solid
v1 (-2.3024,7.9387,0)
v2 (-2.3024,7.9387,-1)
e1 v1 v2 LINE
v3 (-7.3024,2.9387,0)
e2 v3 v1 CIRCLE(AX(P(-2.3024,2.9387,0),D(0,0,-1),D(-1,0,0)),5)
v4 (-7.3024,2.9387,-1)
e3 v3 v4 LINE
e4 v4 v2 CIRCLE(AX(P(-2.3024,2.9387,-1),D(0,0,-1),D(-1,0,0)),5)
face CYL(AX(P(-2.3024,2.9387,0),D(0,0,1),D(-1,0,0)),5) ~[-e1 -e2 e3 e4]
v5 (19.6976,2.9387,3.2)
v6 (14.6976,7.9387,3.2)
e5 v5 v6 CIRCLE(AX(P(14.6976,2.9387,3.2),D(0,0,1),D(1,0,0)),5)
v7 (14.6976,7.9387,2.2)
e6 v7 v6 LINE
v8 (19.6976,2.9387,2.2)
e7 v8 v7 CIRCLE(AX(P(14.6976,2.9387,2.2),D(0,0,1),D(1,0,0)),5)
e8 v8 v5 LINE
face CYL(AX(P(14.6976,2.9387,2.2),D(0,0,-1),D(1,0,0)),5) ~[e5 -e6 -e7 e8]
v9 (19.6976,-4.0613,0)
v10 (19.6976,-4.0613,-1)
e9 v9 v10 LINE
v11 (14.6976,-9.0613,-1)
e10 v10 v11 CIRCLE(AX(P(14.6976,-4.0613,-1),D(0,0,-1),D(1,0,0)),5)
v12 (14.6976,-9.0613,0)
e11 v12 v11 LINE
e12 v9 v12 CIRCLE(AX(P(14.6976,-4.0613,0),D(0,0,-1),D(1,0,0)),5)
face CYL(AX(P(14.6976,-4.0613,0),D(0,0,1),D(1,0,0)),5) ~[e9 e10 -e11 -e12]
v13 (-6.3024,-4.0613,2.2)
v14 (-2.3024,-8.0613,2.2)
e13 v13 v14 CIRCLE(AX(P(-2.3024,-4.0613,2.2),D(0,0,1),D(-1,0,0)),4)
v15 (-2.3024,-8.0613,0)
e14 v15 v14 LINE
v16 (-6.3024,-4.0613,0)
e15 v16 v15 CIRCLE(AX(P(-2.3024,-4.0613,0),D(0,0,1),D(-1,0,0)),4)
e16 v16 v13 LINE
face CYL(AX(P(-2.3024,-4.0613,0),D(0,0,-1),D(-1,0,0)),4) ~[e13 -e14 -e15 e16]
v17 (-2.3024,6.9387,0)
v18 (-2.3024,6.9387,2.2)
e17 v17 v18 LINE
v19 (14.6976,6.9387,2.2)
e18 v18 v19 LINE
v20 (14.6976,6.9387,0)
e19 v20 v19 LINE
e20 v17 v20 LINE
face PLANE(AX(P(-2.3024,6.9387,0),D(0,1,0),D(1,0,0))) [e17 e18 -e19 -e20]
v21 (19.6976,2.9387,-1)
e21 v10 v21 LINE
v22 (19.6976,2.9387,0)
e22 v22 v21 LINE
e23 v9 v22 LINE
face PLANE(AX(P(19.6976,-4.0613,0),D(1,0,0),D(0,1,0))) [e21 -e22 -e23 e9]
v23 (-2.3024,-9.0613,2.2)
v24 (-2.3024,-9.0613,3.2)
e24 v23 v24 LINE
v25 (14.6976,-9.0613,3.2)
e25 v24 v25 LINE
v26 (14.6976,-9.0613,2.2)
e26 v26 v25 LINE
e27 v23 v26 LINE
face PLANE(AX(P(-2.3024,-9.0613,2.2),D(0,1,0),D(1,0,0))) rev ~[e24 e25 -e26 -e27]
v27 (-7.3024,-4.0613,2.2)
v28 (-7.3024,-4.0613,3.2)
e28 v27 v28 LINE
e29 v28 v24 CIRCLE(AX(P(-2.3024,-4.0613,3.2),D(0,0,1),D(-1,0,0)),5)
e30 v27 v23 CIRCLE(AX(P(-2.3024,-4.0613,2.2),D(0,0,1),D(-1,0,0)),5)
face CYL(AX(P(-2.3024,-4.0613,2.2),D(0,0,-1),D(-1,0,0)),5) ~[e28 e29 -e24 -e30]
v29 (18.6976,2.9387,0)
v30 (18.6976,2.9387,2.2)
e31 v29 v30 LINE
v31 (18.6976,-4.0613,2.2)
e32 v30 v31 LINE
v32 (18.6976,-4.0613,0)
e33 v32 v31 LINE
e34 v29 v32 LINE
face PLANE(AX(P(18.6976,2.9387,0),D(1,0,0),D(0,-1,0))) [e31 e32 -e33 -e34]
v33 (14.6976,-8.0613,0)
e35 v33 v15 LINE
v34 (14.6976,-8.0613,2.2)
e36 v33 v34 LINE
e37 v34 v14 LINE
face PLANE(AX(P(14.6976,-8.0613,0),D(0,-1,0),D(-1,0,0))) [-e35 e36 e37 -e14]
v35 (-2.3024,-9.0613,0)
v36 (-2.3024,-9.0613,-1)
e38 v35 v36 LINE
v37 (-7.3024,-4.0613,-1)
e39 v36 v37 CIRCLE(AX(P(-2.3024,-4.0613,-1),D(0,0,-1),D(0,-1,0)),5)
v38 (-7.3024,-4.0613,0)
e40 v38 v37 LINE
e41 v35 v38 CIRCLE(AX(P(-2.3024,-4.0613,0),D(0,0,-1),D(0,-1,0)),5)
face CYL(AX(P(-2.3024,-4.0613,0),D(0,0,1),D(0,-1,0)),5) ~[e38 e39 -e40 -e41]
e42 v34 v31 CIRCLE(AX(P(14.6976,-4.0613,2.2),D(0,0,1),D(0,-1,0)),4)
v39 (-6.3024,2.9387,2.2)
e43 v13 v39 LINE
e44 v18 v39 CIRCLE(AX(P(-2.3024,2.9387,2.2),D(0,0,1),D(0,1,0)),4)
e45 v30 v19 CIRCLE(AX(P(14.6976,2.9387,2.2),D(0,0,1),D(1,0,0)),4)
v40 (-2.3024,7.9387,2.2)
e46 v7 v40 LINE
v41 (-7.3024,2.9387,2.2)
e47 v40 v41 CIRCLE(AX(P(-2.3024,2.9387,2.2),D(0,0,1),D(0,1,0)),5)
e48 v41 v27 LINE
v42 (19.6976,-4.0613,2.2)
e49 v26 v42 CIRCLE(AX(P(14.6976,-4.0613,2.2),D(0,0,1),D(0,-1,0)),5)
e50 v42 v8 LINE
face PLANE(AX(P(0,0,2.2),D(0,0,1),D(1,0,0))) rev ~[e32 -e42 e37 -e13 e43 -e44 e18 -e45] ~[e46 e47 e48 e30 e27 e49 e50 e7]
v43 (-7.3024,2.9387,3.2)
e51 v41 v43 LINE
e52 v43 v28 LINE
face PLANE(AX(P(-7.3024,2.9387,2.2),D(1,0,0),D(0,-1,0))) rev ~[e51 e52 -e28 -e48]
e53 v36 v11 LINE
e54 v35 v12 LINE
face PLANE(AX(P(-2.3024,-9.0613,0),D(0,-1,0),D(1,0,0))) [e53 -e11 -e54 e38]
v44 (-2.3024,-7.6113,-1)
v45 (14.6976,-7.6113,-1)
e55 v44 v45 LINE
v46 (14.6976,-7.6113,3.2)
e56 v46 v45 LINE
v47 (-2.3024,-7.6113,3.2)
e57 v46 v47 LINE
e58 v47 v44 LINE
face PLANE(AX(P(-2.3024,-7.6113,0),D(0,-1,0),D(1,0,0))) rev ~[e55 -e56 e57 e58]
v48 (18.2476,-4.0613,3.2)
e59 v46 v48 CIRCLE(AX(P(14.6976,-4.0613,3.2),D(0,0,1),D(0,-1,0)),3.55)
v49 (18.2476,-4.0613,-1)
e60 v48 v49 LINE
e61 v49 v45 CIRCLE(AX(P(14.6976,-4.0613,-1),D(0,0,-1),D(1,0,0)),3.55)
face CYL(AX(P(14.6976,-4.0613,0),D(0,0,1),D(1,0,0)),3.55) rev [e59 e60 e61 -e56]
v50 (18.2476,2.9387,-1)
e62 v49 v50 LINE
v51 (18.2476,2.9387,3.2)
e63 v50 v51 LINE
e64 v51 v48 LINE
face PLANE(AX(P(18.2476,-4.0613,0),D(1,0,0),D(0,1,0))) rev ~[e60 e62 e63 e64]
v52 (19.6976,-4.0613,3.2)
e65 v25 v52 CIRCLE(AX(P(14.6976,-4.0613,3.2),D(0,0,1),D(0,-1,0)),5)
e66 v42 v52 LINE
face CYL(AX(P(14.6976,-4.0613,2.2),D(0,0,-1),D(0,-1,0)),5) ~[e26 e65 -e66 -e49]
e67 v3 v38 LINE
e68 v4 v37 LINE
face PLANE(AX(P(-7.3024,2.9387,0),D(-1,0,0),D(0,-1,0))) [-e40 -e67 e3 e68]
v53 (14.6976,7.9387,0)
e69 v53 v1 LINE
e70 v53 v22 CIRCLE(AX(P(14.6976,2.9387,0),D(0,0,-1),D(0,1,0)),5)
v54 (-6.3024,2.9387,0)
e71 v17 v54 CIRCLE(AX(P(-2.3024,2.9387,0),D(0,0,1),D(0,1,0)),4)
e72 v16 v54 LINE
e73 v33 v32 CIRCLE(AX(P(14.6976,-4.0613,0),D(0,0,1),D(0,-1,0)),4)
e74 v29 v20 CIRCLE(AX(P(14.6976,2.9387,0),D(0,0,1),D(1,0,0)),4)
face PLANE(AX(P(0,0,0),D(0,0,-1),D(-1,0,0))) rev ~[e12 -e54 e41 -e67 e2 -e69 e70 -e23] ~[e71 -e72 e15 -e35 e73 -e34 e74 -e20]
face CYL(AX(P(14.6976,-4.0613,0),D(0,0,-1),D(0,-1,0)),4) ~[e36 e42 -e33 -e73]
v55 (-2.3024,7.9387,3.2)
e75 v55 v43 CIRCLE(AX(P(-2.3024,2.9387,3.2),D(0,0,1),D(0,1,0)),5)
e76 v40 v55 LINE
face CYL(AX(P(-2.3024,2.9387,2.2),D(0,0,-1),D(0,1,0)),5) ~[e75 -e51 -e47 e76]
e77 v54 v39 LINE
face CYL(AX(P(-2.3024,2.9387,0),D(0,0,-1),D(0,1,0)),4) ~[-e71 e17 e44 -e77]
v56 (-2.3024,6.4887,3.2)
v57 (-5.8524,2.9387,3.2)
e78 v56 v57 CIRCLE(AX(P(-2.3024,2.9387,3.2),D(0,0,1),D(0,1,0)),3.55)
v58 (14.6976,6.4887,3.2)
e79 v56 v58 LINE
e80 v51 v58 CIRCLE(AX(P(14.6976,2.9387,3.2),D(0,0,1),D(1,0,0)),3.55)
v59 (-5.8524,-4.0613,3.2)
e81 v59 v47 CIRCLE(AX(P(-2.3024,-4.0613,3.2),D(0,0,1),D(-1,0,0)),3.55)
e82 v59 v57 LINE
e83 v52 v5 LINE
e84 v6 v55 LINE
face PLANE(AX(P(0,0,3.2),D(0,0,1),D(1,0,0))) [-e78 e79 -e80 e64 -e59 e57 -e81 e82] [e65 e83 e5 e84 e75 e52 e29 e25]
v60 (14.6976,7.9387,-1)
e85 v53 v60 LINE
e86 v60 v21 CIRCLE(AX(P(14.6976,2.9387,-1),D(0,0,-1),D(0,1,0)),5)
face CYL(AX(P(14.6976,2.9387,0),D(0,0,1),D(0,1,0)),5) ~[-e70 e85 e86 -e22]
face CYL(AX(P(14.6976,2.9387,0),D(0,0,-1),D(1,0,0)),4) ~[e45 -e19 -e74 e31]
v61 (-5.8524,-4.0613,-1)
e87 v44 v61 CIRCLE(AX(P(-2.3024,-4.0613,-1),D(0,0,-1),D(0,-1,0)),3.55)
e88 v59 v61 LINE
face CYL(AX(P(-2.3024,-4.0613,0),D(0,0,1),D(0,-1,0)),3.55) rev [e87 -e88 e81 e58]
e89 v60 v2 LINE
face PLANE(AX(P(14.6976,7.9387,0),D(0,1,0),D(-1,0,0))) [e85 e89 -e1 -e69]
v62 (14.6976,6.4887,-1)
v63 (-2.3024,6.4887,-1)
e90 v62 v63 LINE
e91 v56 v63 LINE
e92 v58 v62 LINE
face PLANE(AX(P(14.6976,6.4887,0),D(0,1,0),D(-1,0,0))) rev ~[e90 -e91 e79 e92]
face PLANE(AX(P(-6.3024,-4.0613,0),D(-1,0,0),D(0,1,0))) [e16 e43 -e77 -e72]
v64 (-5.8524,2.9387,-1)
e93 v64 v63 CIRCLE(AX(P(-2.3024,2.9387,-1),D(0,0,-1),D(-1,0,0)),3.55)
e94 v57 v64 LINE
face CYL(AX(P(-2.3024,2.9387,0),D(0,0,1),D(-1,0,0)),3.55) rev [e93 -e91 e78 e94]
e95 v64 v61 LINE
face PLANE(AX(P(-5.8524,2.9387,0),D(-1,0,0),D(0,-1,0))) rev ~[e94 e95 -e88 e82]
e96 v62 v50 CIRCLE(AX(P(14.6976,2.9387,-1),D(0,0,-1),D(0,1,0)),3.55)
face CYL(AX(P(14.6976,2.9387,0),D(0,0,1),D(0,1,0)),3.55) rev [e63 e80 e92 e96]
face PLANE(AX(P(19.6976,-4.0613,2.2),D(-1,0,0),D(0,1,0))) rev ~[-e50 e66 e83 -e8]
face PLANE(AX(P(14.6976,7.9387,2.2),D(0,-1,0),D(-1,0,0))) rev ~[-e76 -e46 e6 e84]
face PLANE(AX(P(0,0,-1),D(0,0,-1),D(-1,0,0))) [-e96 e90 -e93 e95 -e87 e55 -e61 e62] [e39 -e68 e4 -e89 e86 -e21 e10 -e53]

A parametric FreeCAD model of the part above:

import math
import FreeCAD as App
import Part
import Sketcher

V = App.Vector
Q = App.Units.Quantity

doc = App.newDocument("Part")
body = doc.addObject("PartDesign::Body", "Body")

sketch1 = body.newObject("Sketcher::SketchObject", "Sketch")
sketch1.AttachmentSupport = (doc.getObject("XY_Plane"), [""])
sketch1.MapMode = "FlatFace"
sketch1.addGeometry([
    Part.LineSegment(V(14.7, 6.9, 0), V(-2.3, 6.9, 0)),
    Part.ArcOfCircle(Part.Circle(V(-2.3, 2.9, 0), V(0, 0, 1), 4), math.radians(90), math.radians(180)),
    Part.LineSegment(V(-6.3, 2.9, 0), V(-6.3, -4.1, 0)),
    Part.ArcOfCircle(Part.Circle(V(-2.3, -4.1, 0), V(0, 0, 1), 4), math.radians(180), math.radians(270)),
    Part.LineSegment(V(-2.3, -8.1, 0), V(14.7, -8.1, 0)),
    Part.ArcOfCircle(Part.Circle(V(14.7, -4.1, 0), V(0, 0, 1), 4), math.radians(-90), math.radians(0)),
    Part.LineSegment(V(18.7, -4.1, 0), V(18.7, 2.9, 0)),
    Part.ArcOfCircle(Part.Circle(V(14.7, 2.9, 0), V(0, 0, 1), 4), math.radians(0), math.radians(90)),
    Part.LineSegment(V(-2.3, 6.5, 0), V(14.7, 6.5, 0)),
    Part.ArcOfCircle(Part.Circle(V(14.7, 2.9, 0), V(0, 0, 1), 3.5), math.radians(0), math.radians(90)),
    Part.LineSegment(V(18.2, 2.9, 0), V(18.2, -4.1, 0)),
    Part.ArcOfCircle(Part.Circle(V(14.7, -4.1, 0), V(0, 0, 1), 3.5), math.radians(-90), math.radians(0)),
    Part.LineSegment(V(14.7, -7.6, 0), V(-2.3, -7.6, 0)),
    Part.ArcOfCircle(Part.Circle(V(-2.3, -4.1, 0), V(0, 0, 1), 3.6), math.radians(180), math.radians(270)),
    Part.LineSegment(V(-5.9, -4.1, 0), V(-5.9, 2.9, 0)),
    Part.ArcOfCircle(Part.Circle(V(-2.3, 2.9, 0), V(0, 0, 1), 3.5), math.radians(90), math.radians(180)),
], False)
sketch1.addConstraint([
    Sketcher.Constraint("Tangent", 0, 2, 1, 1),
    Sketcher.Constraint("Tangent", 1, 2, 2, 1),
    Sketcher.Constraint("Tangent", 2, 2, 3, 1),
    Sketcher.Constraint("Tangent", 3, 2, 4, 1),
    Sketcher.Constraint("Tangent", 4, 2, 5, 1),
    Sketcher.Constraint("Tangent", 5, 2, 6, 1),
    Sketcher.Constraint("Tangent", 6, 2, 7, 1),
    Sketcher.Constraint("Tangent", 7, 2, 0, 1),
    Sketcher.Constraint("Tangent", 8, 2, 9, 2),
    Sketcher.Constraint("Tangent", 9, 1, 10, 1),
    Sketcher.Constraint("Tangent", 10, 2, 11, 2),
    Sketcher.Constraint("Tangent", 11, 1, 12, 1),
    Sketcher.Constraint("Tangent", 12, 2, 13, 2),
    Sketcher.Constraint("Tangent", 13, 1, 14, 1),
    Sketcher.Constraint("Tangent", 14, 2, 15, 2),
    Sketcher.Constraint("Tangent", 15, 1, 8, 1),
    Sketcher.Constraint("Horizontal", 0),
    Sketcher.Constraint("Vertical", 2),
    Sketcher.Constraint("Horizontal", 4),
    Sketcher.Constraint("Vertical", 6),
    Sketcher.Constraint("Horizontal", 8),
    Sketcher.Constraint("Vertical", 10),
    Sketcher.Constraint("Horizontal", 12),
    Sketcher.Constraint("Vertical", 14),
    Sketcher.Constraint("Coincident", 9, 3, 7, 3),
    Sketcher.Constraint("Coincident", 11, 3, 5, 3),
    Sketcher.Constraint("Coincident", 13, 3, 3, 3),
    Sketcher.Constraint("Equal", 1, 3),
    Sketcher.Constraint("Equal", 3, 5),
    Sketcher.Constraint("Equal", 5, 7),
    Sketcher.Constraint("Equal", 13, 15),
    Sketcher.Constraint("Radius", 1, Q("4 mm")),
    Sketcher.Constraint("DistanceX", 0, 2, 0, 1, Q("17 mm")),
    Sketcher.Constraint("DistanceY", 2, 2, 2, 1, Q("7 mm")),
    Sketcher.Constraint("Radius", 9, Q("3.55 mm")),
    Sketcher.Constraint("DistanceX", 1, 3, -1, 1, Q("2.3024 mm")),
    Sketcher.Constraint("DistanceY", -1, 1, 1, 3, Q("2.9387 mm")),
])
pad1 = body.newObject("PartDesign::Pad", "Pad")
pad1.Profile = sketch1
pad1.Length = 2.2

sketch2 = body.newObject("Sketcher::SketchObject", "Sketch001")
sketch2.AttachmentSupport = (doc.getObject("XY_Plane"), [""])
sketch2.MapMode = "FlatFace"
sketch2.AttachmentOffset = App.Placement(V(0, 0, 2.2), App.Rotation())
sketch2.addGeometry([
    Part.ArcOfCircle(Part.Circle(V(-2.3, 2.9, 0), V(0, 0, 1), 5), math.radians(90), math.radians(180)),
    Part.LineSegment(V(-7.3, 2.9, 0), V(-7.3, -4.1, 0)),
    Part.ArcOfCircle(Part.Circle(V(-2.3, -4.1, 0), V(0, 0, 1), 5), math.radians(180), math.radians(270)),
    Part.LineSegment(V(-2.3, -9.1, 0), V(14.7, -9.1, 0)),
    Part.ArcOfCircle(Part.Circle(V(14.7, -4.1, 0), V(0, 0, 1), 5), math.radians(-90), math.radians(0)),
    Part.LineSegment(V(19.7, -4.1, 0), V(19.7, 2.9, 0)),
    Part.ArcOfCircle(Part.Circle(V(14.7, 2.9, 0), V(0, 0, 1), 5), math.radians(0), math.radians(90)),
    Part.LineSegment(V(14.7, 7.9, 0), V(-2.3, 7.9, 0)),
    Part.ArcOfCircle(Part.Circle(V(14.7, 2.9, 0), V(0, 0, 1), 3.5), math.radians(0), math.radians(90)),
    Part.LineSegment(V(18.2, 2.9, 0), V(18.2, -4.1, 0)),
    Part.ArcOfCircle(Part.Circle(V(14.7, -4.1, 0), V(0, 0, 1), 3.5), math.radians(-90), math.radians(0)),
    Part.LineSegment(V(14.7, -7.6, 0), V(-2.3, -7.6, 0)),
    Part.ArcOfCircle(Part.Circle(V(-2.3, -4.1, 0), V(0, 0, 1), 3.6), math.radians(180), math.radians(270)),
    Part.LineSegment(V(-5.9, -4.1, 0), V(-5.9, 2.9, 0)),
    Part.ArcOfCircle(Part.Circle(V(-2.3, 2.9, 0), V(0, 0, 1), 3.5), math.radians(90), math.radians(180)),
    Part.LineSegment(V(-2.3, 6.5, 0), V(14.7, 6.5, 0)),
], False)
sketch2.addConstraint([
    Sketcher.Constraint("Tangent", 0, 2, 1, 1),
    Sketcher.Constraint("Tangent", 1, 2, 2, 1),
    Sketcher.Constraint("Tangent", 2, 2, 3, 1),
    Sketcher.Constraint("Tangent", 3, 2, 4, 1),
    Sketcher.Constraint("Tangent", 4, 2, 5, 1),
    Sketcher.Constraint("Tangent", 5, 2, 6, 1),
    Sketcher.Constraint("Tangent", 6, 2, 7, 1),
    Sketcher.Constraint("Tangent", 7, 2, 0, 1),
    Sketcher.Constraint("Tangent", 8, 1, 9, 1),
    Sketcher.Constraint("Tangent", 9, 2, 10, 2),
    Sketcher.Constraint("Tangent", 10, 1, 11, 1),
    Sketcher.Constraint("Tangent", 11, 2, 12, 2),
    Sketcher.Constraint("Tangent", 12, 1, 13, 1),
    Sketcher.Constraint("Tangent", 13, 2, 14, 2),
    Sketcher.Constraint("Tangent", 14, 1, 15, 1),
    Sketcher.Constraint("Tangent", 15, 2, 8, 2),
    Sketcher.Constraint("Vertical", 1),
    Sketcher.Constraint("Horizontal", 3),
    Sketcher.Constraint("Vertical", 5),
    Sketcher.Constraint("Horizontal", 7),
    Sketcher.Constraint("Vertical", 9),
    Sketcher.Constraint("Horizontal", 11),
    Sketcher.Constraint("Vertical", 13),
    Sketcher.Constraint("Horizontal", 15),
    Sketcher.Constraint("Coincident", 8, 3, 6, 3),
    Sketcher.Constraint("Coincident", 10, 3, 4, 3),
    Sketcher.Constraint("Coincident", 12, 3, 2, 3),
    Sketcher.Constraint("Equal", 0, 2),
    Sketcher.Constraint("Equal", 2, 4),
    Sketcher.Constraint("Equal", 4, 6),
    Sketcher.Constraint("Equal", 12, 14),
    Sketcher.Constraint("Radius", 0, Q("5 mm")),
    Sketcher.Constraint("DistanceX", 3, 1, 3, 2, Q("17 mm")),
    Sketcher.Constraint("DistanceY", 1, 2, 1, 1, Q("7 mm")),
    Sketcher.Constraint("Radius", 8, Q("3.55 mm")),
    Sketcher.Constraint("DistanceX", 0, 3, -1, 1, Q("2.3024 mm")),
    Sketcher.Constraint("DistanceY", -1, 1, 0, 3, Q("2.9387 mm")),
])
pad2 = body.newObject("PartDesign::Pad", "Pad001")
pad2.Profile = sketch2
pad2.Length = 1

sketch3 = body.newObject("Sketcher::SketchObject", "Sketch002")
sketch3.AttachmentSupport = (doc.getObject("XY_Plane"), [""])
sketch3.MapMode = "FlatFace"
sketch3.addGeometry([
    Part.LineSegment(V(-7.3, -4.1, 0), V(-7.3, 2.9, 0)),
    Part.ArcOfCircle(Part.Circle(V(-2.3, 2.9, 0), V(0, 0, 1), 5), math.radians(90), math.radians(180)),
    Part.LineSegment(V(-2.3, 7.9, 0), V(14.7, 7.9, 0)),
    Part.ArcOfCircle(Part.Circle(V(14.7, 2.9, 0), V(0, 0, 1), 5), math.radians(0), math.radians(90)),
    Part.LineSegment(V(19.7, 2.9, 0), V(19.7, -4.1, 0)),
    Part.ArcOfCircle(Part.Circle(V(14.7, -4.1, 0), V(0, 0, 1), 5), math.radians(-90), math.radians(0)),
    Part.LineSegment(V(14.7, -9.1, 0), V(-2.3, -9.1, 0)),
    Part.ArcOfCircle(Part.Circle(V(-2.3, -4.1, 0), V(0, 0, 1), 5), math.radians(180), math.radians(270)),
    Part.ArcOfCircle(Part.Circle(V(14.7, 2.9, 0), V(0, 0, 1), 3.5), math.radians(0), math.radians(90)),
    Part.LineSegment(V(14.7, 6.5, 0), V(-2.3, 6.5, 0)),
    Part.ArcOfCircle(Part.Circle(V(-2.3, 2.9, 0), V(0, 0, 1), 3.6), math.radians(90), math.radians(180)),
    Part.LineSegment(V(-5.9, 2.9, 0), V(-5.9, -4.1, 0)),
    Part.ArcOfCircle(Part.Circle(V(-2.3, -4.1, 0), V(0, 0, 1), 3.5), math.radians(180), math.radians(270)),
    Part.LineSegment(V(-2.3, -7.6, 0), V(14.7, -7.6, 0)),
    Part.ArcOfCircle(Part.Circle(V(14.7, -4.1, 0), V(0, 0, 1), 3.5), math.radians(-90), math.radians(0)),
    Part.LineSegment(V(18.2, -4.1, 0), V(18.2, 2.9, 0)),
], False)
sketch3.addConstraint([
    Sketcher.Constraint("Tangent", 0, 2, 1, 2),
    Sketcher.Constraint("Tangent", 1, 1, 2, 1),
    Sketcher.Constraint("Tangent", 2, 2, 3, 2),
    Sketcher.Constraint("Tangent", 3, 1, 4, 1),
    Sketcher.Constraint("Tangent", 4, 2, 5, 2),
    Sketcher.Constraint("Tangent", 5, 1, 6, 1),
    Sketcher.Constraint("Tangent", 6, 2, 7, 2),
    Sketcher.Constraint("Tangent", 7, 1, 0, 1),
    Sketcher.Constraint("Tangent", 8, 2, 9, 1),
    Sketcher.Constraint("Tangent", 9, 2, 10, 1),
    Sketcher.Constraint("Tangent", 10, 2, 11, 1),
    Sketcher.Constraint("Tangent", 11, 2, 12, 1),
    Sketcher.Constraint("Tangent", 12, 2, 13, 1),
    Sketcher.Constraint("Tangent", 13, 2, 14, 1),
    Sketcher.Constraint("Tangent", 14, 2, 15, 1),
    Sketcher.Constraint("Tangent", 15, 2, 8, 1),
    Sketcher.Constraint("Vertical", 0),
    Sketcher.Constraint("Horizontal", 2),
    Sketcher.Constraint("Vertical", 4),
    Sketcher.Constraint("Horizontal", 6),
    Sketcher.Constraint("Horizontal", 9),
    Sketcher.Constraint("Vertical", 11),
    Sketcher.Constraint("Horizontal", 13),
    Sketcher.Constraint("Vertical", 15),
    Sketcher.Constraint("Coincident", 8, 3, 3, 3),
    Sketcher.Constraint("Coincident", 10, 3, 1, 3),
    Sketcher.Constraint("Coincident", 12, 3, 7, 3),
    Sketcher.Constraint("Equal", 1, 3),
    Sketcher.Constraint("Equal", 3, 5),
    Sketcher.Constraint("Equal", 5, 7),
    Sketcher.Constraint("Equal", 12, 14),
    Sketcher.Constraint("Radius", 1, Q("5 mm")),
    Sketcher.Constraint("DistanceX", 2, 1, 2, 2, Q("17 mm")),
    Sketcher.Constraint("DistanceY", 0, 1, 0, 2, Q("7 mm")),
    Sketcher.Constraint("Radius", 8, Q("3.55 mm")),
    Sketcher.Constraint("DistanceX", 1, 3, -1, 1, Q("2.3024 mm")),
    Sketcher.Constraint("DistanceY", -1, 1, 1, 3, Q("2.9387 mm")),
])
pad3 = body.newObject("PartDesign::Pad", "Pad002")
pad3.Profile = sketch3
pad3.Length = 1
pad3.Reversed = True

doc.recompute()
